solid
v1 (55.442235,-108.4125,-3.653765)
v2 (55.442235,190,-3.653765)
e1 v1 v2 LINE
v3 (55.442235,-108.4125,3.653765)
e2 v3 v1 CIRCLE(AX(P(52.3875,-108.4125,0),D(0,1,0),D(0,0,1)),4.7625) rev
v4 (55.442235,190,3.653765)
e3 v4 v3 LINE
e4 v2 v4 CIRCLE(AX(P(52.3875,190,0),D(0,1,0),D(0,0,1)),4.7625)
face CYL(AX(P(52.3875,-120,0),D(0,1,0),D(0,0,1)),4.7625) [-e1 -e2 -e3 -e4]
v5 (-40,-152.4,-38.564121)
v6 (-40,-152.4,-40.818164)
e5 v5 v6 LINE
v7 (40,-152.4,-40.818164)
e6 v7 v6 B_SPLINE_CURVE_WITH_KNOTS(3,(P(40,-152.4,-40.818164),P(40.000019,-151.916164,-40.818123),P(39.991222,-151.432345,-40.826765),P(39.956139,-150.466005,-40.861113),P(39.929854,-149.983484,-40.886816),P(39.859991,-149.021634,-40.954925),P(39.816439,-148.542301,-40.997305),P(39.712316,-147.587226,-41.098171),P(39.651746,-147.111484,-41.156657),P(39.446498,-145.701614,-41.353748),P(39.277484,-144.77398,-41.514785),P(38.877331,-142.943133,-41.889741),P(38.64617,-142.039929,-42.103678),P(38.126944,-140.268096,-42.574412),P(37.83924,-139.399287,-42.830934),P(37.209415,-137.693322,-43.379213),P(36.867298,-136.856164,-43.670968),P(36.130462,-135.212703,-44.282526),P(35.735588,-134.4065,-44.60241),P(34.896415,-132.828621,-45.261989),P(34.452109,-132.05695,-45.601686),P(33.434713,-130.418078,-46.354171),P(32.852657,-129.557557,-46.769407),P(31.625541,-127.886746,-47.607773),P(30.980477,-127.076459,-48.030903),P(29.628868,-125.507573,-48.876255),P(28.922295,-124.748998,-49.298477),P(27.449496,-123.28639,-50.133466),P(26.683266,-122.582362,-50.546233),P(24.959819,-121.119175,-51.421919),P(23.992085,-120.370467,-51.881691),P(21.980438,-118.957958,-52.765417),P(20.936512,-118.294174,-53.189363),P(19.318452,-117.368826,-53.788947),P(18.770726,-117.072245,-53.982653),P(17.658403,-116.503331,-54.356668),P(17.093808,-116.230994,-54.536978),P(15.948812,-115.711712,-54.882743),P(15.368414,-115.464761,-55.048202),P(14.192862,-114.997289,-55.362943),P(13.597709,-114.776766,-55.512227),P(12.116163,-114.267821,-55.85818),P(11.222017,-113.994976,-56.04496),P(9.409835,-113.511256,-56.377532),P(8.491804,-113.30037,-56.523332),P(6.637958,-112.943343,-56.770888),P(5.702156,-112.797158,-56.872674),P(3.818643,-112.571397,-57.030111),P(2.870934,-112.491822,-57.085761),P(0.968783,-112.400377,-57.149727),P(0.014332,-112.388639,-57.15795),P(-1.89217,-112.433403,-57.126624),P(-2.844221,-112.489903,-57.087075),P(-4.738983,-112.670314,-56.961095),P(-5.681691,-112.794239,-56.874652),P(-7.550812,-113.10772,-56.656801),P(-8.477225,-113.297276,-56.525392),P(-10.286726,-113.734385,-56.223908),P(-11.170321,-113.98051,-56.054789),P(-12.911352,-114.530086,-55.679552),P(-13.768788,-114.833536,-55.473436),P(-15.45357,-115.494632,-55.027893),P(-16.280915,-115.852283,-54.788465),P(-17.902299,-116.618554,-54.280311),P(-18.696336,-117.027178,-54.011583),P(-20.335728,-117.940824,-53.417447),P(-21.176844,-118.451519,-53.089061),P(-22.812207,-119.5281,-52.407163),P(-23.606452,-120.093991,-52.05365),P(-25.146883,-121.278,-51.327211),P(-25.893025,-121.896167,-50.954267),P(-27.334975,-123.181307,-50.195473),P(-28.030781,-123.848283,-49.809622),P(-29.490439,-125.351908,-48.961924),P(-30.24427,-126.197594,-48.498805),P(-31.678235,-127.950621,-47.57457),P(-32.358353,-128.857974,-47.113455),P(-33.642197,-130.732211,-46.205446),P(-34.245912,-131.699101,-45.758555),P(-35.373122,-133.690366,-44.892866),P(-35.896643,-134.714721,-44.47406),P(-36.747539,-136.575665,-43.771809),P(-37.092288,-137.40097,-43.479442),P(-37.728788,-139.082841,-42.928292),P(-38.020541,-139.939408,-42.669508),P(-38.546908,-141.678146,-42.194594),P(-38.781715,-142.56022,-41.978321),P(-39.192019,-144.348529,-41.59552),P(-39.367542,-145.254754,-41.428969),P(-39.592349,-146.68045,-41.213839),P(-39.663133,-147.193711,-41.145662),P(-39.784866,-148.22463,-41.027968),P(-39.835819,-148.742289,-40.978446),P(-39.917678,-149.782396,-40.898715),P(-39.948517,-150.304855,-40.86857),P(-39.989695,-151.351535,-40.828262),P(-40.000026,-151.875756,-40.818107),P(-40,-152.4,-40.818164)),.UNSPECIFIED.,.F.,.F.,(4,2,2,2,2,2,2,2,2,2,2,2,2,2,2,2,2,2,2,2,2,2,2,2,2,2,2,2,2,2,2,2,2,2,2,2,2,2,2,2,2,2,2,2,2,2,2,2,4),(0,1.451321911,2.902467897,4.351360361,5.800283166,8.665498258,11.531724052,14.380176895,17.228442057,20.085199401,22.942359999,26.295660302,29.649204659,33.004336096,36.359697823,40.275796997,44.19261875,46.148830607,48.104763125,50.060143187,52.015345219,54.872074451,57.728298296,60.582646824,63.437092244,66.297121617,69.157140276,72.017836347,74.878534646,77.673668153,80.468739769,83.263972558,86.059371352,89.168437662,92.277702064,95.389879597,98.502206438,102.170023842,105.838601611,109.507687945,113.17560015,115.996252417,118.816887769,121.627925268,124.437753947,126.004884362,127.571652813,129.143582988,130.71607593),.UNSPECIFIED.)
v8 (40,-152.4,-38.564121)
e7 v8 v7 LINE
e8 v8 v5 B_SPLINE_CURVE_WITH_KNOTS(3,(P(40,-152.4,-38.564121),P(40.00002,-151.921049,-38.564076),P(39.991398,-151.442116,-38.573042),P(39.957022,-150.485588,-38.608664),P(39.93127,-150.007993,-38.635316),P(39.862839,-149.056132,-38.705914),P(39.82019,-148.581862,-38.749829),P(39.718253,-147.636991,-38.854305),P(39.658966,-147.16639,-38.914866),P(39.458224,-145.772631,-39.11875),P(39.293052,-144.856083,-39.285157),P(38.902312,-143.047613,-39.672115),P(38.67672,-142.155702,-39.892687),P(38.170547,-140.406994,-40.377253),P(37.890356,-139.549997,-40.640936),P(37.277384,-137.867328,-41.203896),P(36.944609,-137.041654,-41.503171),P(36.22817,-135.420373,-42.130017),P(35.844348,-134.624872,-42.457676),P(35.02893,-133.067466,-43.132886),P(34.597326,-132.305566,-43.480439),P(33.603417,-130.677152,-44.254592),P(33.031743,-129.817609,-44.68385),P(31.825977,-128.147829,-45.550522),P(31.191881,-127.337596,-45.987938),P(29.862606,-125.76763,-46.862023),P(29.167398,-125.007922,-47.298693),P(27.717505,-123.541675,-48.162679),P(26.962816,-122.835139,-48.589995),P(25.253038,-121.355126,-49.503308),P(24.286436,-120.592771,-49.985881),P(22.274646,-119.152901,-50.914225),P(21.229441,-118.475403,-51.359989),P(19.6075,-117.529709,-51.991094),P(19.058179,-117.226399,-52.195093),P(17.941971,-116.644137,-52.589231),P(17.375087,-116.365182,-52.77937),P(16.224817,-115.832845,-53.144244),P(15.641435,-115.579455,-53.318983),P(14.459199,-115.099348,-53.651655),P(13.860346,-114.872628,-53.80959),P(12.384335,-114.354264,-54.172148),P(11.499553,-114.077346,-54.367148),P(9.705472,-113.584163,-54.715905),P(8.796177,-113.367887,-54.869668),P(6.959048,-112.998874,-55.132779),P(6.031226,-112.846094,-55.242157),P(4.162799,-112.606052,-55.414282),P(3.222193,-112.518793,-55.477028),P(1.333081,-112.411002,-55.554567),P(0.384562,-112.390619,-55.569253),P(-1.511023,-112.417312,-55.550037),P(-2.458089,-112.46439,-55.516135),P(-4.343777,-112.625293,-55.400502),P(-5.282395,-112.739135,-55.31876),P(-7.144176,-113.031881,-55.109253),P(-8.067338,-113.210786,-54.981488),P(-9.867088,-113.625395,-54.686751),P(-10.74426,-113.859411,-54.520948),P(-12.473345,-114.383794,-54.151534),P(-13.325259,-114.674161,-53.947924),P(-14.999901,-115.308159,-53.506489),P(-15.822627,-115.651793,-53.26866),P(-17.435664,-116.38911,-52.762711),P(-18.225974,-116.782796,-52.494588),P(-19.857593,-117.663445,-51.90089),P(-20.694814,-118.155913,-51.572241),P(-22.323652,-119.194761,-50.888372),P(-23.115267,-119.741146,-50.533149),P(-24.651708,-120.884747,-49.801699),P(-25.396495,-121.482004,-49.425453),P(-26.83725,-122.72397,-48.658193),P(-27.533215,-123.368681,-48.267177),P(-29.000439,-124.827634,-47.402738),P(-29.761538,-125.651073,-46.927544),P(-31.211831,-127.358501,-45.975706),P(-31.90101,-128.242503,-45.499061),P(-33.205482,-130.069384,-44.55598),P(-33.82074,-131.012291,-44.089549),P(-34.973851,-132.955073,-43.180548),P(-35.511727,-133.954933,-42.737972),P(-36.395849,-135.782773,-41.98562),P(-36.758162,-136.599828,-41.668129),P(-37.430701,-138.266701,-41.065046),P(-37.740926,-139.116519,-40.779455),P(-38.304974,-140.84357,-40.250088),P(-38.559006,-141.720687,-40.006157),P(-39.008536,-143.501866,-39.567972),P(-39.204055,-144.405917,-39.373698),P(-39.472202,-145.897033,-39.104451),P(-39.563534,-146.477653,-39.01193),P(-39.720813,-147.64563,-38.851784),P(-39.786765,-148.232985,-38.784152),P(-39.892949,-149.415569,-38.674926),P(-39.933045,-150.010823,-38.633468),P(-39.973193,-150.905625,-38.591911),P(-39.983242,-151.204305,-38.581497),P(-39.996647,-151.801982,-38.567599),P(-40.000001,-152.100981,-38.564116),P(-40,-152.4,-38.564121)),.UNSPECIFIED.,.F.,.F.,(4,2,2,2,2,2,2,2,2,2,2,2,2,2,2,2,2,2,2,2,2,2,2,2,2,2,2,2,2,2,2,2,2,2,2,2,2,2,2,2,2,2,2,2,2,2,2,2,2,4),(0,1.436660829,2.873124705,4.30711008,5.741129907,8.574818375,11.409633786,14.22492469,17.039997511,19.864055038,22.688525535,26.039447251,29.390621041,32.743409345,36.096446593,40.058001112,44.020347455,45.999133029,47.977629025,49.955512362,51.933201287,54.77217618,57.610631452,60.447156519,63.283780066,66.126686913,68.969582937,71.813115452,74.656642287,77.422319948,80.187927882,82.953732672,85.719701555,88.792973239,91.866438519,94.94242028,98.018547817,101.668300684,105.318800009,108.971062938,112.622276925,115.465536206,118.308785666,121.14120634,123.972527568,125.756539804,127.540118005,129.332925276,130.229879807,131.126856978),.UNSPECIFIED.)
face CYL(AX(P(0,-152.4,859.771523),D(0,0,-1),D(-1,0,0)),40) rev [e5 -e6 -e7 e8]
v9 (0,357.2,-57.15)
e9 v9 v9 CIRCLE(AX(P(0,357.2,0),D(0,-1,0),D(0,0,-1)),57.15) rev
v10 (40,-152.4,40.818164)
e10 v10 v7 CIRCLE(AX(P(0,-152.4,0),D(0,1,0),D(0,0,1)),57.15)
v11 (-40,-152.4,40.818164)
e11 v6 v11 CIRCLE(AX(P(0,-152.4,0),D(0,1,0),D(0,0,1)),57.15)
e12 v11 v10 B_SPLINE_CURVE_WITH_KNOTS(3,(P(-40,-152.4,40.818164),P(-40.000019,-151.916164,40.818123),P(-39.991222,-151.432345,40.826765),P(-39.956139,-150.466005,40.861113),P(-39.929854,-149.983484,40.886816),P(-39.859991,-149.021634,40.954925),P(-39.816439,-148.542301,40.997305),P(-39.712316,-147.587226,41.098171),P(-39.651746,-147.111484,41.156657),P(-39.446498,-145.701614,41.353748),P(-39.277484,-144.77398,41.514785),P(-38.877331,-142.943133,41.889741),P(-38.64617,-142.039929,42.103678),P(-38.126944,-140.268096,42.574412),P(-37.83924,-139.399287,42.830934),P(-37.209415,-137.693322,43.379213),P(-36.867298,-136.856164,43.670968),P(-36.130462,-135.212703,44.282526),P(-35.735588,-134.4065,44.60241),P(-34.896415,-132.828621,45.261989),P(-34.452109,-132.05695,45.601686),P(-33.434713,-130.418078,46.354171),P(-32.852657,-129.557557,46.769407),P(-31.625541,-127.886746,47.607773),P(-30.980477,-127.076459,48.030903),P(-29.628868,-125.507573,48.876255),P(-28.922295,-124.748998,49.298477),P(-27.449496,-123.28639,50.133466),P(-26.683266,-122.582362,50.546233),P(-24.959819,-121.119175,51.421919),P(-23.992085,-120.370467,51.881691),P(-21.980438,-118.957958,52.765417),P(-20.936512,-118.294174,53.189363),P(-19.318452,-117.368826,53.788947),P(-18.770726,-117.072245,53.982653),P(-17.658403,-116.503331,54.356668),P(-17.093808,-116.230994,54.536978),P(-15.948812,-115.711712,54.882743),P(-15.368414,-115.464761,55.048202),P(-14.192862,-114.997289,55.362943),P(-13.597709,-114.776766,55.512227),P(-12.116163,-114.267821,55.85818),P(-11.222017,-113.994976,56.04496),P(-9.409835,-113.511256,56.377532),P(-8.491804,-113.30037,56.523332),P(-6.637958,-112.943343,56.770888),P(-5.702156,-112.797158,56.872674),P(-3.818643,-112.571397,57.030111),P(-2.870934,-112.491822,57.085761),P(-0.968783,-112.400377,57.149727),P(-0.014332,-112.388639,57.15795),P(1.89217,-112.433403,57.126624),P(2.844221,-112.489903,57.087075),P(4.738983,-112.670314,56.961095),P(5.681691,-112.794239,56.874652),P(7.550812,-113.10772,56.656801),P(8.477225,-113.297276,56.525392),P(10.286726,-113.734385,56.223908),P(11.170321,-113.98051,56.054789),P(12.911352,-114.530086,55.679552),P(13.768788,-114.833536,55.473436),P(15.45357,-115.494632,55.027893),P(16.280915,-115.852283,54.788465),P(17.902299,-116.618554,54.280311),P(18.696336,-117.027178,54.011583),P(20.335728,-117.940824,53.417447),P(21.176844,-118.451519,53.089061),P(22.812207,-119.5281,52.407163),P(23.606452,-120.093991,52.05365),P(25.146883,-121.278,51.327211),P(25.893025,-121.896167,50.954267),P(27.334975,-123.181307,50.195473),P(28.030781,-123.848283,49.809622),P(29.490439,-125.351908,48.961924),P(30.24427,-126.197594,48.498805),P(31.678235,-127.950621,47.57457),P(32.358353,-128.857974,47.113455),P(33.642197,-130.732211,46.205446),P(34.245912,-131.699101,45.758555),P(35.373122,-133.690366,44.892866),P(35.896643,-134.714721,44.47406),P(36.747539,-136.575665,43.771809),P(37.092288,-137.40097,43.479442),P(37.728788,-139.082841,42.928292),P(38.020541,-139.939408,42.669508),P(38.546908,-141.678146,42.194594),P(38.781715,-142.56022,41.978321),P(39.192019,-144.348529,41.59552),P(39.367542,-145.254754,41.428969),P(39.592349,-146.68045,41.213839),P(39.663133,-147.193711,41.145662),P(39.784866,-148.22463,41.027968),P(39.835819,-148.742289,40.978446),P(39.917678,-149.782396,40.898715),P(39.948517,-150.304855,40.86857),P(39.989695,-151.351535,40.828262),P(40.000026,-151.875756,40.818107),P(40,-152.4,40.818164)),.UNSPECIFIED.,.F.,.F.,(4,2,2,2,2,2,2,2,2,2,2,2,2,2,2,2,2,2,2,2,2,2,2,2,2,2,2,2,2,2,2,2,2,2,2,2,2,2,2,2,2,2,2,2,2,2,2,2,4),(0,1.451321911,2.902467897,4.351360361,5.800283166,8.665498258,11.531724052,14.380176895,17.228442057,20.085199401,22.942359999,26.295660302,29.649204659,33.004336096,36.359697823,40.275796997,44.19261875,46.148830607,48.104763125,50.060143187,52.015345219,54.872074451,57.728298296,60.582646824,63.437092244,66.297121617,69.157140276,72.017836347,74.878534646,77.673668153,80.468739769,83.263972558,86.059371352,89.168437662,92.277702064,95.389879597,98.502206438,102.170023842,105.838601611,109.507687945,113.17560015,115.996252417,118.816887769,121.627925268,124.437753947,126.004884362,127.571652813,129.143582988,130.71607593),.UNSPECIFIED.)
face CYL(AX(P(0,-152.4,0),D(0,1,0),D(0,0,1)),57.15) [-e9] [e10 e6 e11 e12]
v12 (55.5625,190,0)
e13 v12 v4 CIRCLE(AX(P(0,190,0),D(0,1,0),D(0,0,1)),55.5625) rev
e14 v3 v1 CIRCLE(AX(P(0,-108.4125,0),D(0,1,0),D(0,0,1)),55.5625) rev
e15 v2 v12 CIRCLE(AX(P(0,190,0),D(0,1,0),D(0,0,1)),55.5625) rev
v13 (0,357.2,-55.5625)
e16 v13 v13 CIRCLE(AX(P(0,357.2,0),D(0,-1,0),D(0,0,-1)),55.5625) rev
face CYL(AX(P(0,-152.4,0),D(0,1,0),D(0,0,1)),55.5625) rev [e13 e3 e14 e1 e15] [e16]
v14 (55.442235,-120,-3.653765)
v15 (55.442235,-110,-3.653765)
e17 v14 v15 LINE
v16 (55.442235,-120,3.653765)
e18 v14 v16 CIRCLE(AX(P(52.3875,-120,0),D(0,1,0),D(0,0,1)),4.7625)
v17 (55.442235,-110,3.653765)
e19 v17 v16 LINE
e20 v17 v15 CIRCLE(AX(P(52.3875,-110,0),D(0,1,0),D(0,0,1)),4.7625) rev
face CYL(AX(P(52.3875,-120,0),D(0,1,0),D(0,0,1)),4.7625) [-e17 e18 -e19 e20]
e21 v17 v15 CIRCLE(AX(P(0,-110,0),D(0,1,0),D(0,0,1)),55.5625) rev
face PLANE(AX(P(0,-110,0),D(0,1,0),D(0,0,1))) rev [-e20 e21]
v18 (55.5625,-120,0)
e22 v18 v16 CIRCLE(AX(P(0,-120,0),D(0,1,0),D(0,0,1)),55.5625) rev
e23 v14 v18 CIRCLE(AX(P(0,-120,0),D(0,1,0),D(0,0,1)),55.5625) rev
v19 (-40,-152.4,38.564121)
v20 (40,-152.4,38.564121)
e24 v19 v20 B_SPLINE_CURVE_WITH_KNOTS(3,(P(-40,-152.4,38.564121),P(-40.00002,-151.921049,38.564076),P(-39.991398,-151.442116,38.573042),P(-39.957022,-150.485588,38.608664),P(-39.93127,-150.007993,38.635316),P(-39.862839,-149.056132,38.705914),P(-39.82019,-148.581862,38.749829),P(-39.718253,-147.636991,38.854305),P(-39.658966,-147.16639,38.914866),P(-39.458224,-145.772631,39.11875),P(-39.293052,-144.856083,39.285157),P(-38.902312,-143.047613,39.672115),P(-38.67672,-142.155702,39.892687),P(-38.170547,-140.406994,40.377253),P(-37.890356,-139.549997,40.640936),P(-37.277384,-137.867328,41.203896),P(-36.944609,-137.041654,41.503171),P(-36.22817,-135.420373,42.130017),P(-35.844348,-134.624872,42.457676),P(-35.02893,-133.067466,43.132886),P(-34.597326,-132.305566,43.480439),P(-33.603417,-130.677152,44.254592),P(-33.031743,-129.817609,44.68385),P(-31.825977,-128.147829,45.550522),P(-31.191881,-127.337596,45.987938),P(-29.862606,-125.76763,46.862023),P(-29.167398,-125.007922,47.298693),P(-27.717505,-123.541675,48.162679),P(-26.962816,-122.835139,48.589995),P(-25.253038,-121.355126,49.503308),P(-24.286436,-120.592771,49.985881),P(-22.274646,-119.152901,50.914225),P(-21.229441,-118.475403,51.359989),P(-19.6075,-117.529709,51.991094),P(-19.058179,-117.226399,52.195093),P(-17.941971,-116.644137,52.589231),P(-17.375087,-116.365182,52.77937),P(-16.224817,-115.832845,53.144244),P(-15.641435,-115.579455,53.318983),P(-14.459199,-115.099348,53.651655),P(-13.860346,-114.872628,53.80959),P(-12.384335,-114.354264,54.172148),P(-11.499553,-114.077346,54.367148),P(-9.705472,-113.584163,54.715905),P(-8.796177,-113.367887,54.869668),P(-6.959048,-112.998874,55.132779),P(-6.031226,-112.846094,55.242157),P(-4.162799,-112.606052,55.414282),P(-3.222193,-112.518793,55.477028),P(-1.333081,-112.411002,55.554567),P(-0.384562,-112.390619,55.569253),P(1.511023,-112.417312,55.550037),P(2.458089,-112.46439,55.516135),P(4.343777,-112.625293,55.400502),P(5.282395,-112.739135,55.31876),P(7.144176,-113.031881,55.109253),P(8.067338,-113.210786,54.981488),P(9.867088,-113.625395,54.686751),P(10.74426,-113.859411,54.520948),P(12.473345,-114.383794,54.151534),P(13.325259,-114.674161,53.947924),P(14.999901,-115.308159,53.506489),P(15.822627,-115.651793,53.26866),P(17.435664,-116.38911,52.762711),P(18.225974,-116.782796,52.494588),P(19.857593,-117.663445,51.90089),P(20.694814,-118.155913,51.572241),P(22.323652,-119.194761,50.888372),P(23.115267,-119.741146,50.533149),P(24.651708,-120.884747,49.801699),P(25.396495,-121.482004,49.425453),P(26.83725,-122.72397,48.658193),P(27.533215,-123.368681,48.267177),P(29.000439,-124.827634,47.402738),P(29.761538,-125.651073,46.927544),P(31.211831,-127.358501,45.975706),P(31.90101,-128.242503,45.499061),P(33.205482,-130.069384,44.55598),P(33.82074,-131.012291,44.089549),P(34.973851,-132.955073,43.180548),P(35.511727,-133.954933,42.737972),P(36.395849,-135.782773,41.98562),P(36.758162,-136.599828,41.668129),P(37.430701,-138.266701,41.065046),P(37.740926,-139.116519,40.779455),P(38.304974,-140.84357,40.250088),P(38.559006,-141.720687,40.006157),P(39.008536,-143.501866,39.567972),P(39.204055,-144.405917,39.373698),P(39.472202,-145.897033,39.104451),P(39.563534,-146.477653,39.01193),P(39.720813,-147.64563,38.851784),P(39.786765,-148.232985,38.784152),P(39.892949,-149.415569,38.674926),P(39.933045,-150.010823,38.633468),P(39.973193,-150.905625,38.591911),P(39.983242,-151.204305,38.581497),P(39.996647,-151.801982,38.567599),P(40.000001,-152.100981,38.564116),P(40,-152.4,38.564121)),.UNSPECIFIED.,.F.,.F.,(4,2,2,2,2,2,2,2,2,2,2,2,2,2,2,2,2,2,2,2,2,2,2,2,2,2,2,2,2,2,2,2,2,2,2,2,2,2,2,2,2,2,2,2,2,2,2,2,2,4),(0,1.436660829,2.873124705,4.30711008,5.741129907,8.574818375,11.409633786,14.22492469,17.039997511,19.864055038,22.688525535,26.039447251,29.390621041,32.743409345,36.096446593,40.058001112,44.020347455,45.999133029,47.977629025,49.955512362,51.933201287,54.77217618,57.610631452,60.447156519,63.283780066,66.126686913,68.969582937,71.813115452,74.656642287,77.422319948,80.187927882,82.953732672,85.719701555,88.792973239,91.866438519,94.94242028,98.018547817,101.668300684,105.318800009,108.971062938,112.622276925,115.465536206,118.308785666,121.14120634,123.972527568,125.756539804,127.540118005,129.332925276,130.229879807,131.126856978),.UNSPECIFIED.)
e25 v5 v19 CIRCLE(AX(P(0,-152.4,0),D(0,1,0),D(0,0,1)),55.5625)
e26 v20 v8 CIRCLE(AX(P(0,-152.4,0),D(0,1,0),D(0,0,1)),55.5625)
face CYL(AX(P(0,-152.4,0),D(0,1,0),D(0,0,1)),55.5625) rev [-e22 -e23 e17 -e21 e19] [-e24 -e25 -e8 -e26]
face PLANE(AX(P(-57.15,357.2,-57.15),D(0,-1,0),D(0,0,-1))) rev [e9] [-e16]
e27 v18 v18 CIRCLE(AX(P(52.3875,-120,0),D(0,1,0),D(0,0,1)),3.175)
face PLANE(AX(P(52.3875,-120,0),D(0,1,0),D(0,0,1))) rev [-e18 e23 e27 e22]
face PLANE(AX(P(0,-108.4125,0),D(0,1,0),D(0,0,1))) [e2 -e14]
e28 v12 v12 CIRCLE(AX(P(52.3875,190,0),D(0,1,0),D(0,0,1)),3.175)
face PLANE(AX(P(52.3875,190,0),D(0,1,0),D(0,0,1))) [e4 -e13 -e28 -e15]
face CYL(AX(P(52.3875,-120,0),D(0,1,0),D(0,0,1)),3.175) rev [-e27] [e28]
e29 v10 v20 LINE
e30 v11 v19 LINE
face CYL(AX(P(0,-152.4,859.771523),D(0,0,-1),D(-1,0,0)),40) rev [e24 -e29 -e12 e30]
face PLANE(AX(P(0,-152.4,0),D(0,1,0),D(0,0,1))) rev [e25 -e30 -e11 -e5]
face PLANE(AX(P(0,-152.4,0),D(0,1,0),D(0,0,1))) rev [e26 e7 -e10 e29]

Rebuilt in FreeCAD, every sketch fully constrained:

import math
import FreeCAD as App
import Part
import Sketcher

V = App.Vector
Q = App.Units.Quantity

doc = App.newDocument("Part")
body = doc.addObject("PartDesign::Body", "Body")

# Sketch on XZ plane
sketch1 = doc.addObject("Sketcher::SketchObject", "Sketch")
body.addObject(sketch1)
sketch1.AttachmentSupport = (doc.XZ_Plane, [""])
sketch1.MapMode = "FlatFace"
sketch1.addGeometry(Part.Circle(V(0, 0, 0), V(0, 0, 1), 57), False)
sketch1.addGeometry(Part.Circle(V(0, 0, 0), V(0, 0, 1), 56), False)
sketch1.addConstraint(Sketcher.Constraint("Coincident", 0, 3, -1, 1))
sketch1.addConstraint(Sketcher.Constraint("Coincident", 1, 3, -1, 1))
sketch1.addConstraint(Sketcher.Constraint("Diameter", 0, Q("4.5 in")))
sketch1.addConstraint(Sketcher.Constraint("Diameter", 1, Q("4.375 in")))
pad1 = doc.addObject("PartDesign::Pad", "Pad")
body.addObject(pad1)
pad1.Profile = sketch1
pad1.Type = "TwoLengths"
pad1.Length = Q("18 in")
pad1.Length2 = Q("6 in")
pad1.Reversed = True

# Sketch on XY plane
sketch2 = doc.addObject("Sketcher::SketchObject", "Sketch001")
body.addObject(sketch2)
sketch2.AttachmentSupport = (doc.XY_Plane, [""])
sketch2.MapMode = "FlatFace"
sketch2.addGeometry(Part.ArcOfCircle(Part.Circle(V(0, -152, 0), V(0, 0, 1), 40), math.radians(0), math.radians(180)), False)
sketch2.addGeometry(Part.LineSegment(V(-40, -152, 0), V(-40, -3886, 0)), False)
sketch2.addGeometry(Part.LineSegment(V(-40, -3886, 0), V(40, -3886, 0)), False)
sketch2.addGeometry(Part.LineSegment(V(40, -3886, 0), V(40, -152, 0)), False)
sketch2.addConstraint(Sketcher.Constraint("Tangent", 0, 2, 1, 1))
sketch2.addConstraint(Sketcher.Constraint("Coincident", 1, 2, 2, 1))
sketch2.addConstraint(Sketcher.Constraint("Coincident", 2, 2, 3, 1))
sketch2.addConstraint(Sketcher.Constraint("Tangent", 3, 2, 0, 1))
sketch2.addConstraint(Sketcher.Constraint("Vertical", 1))
sketch2.addConstraint(Sketcher.Constraint("Horizontal", 2))
sketch2.addConstraint(Sketcher.Constraint("Vertical", 3))
sketch2.addConstraint(Sketcher.Constraint("PointOnObject", 0, 3, -2))
sketch2.addConstraint(Sketcher.Constraint("DistanceY", 0, 3, -1, 1, Q("6 in")))
sketch2.addConstraint(Sketcher.Constraint("Radius", 0, 40.0))
sketch2.addConstraint(Sketcher.Constraint("DistanceY", 1, 2, 1, 1, 3733.756224))
pocket1 = doc.addObject("PartDesign::Pocket", "Pocket")
body.addObject(pocket1)
pocket1.Profile = sketch2
pocket1.Type = "ThroughAll"
pocket1.Midplane = True

# Sketch on XY plane
sketch3 = doc.addObject("Sketcher::SketchObject", "Sketch002")
body.addObject(sketch3)
sketch3.AttachmentSupport = (doc.XY_Plane, [""])
sketch3.MapMode = "FlatFace"
sketch3.addGeometry(Part.LineSegment(V(-57, 457, 0), V(-57, 357, 0)), False)
sketch3.addGeometry(Part.LineSegment(V(-57, 357, 0), V(57, 357, 0)), False)
sketch3.addGeometry(Part.LineSegment(V(57, 357, 0), V(57, 457, 0)), False)
sketch3.addGeometry(Part.LineSegment(V(57, 457, 0), V(-57, 457, 0)), False)
sketch3.addConstraint(Sketcher.Constraint("Coincident", 0, 2, 1, 1))
sketch3.addConstraint(Sketcher.Constraint("Coincident", 1, 2, 2, 1))
sketch3.addConstraint(Sketcher.Constraint("Coincident", 2, 2, 3, 1))
sketch3.addConstraint(Sketcher.Constraint("Coincident", 3, 2, 0, 1))
sketch3.addConstraint(Sketcher.Constraint("Vertical", 0))
sketch3.addConstraint(Sketcher.Constraint("Horizontal", 1))
sketch3.addConstraint(Sketcher.Constraint("Vertical", 2))
sketch3.addConstraint(Sketcher.Constraint("Horizontal", 3))
sketch3.addConstraint(Sketcher.Constraint("DistanceX", 1, 1, 1, 2, Q("4.5 in")))
sketch3.addConstraint(Sketcher.Constraint("DistanceY", -1, 1, 2, 2, Q("18 in")))
sketch3.addConstraint(Sketcher.Constraint("DistanceX", 0, 2, -1, 1, Q("2.25 in")))
sketch3.addConstraint(Sketcher.Constraint("DistanceY", 0, 2, 0, 1, 100.0))
pocket2 = doc.addObject("PartDesign::Pocket", "Pocket001")
body.addObject(pocket2)
pocket2.Profile = sketch3
pocket2.Type = "ThroughAll"
pocket2.Midplane = True

# Sketch on XZ plane
sketch4 = doc.addObject("Sketcher::SketchObject", "Sketch003")
body.addObject(sketch4)
sketch4.AttachmentSupport = (doc.XZ_Plane, [""])
sketch4.MapMode = "FlatFace"
sketch4.AttachmentOffset = App.Placement(V(0, 0, 110), App.Rotation())
sketch4.addGeometry(Part.Circle(V(52.4, 0, 0), V(0, 0, 1), 4.8), False)
sketch4.addGeometry(Part.Circle(V(52.4, 0, 0), V(0, 0, 1), 3.2), False)
sketch4.addConstraint(Sketcher.Constraint("Coincident", 1, 3, 0, 3))
sketch4.addConstraint(Sketcher.Constraint("PointOnObject", 0, 3, -1))
sketch4.addConstraint(Sketcher.Constraint("Diameter", 1, Q("0.25 in")))
sketch4.addConstraint(Sketcher.Constraint("Diameter", 0, Q("0.375 in")))
sketch4.addConstraint(Sketcher.Constraint("DistanceX", -1, 1, 0, 3, Q("2.0625 in")))
pad2 = doc.addObject("PartDesign::Pad", "Pad001")
body.addObject(pad2)
pad2.Profile = sketch4
pad2.Type = "TwoLengths"
pad2.Length = 300
pad2.Length2 = 10
pad2.Reversed = True

# Sketch on XZ plane
sketch5 = doc.addObject("Sketcher::SketchObject", "Sketch004")
body.addObject(sketch5)
sketch5.AttachmentSupport = (doc.XZ_Plane, [""])
sketch5.MapMode = "FlatFace"
sketch5.AttachmentOffset = App.Placement(V(0, 0, 110), App.Rotation())
sketch5.addGeometry(Part.Circle(V(0, 0, 0), V(0, 0, 1), 57.1), False)
sketch5.addGeometry(Part.Circle(V(52.4, 0, 0), V(0, 0, 1), 3.2), False)
sketch5.addConstraint(Sketcher.Constraint("Coincident", 0, 3, -1, 1))
sketch5.addConstraint(Sketcher.Constraint("PointOnObject", 1, 3, -1))
sketch5.addConstraint(Sketcher.Constraint("Diameter", 0, Q("4.5 in")))
sketch5.addConstraint(Sketcher.Constraint("Diameter", 1, Q("0.25 in")))
sketch5.addConstraint(Sketcher.Constraint("DistanceX", -1, 1, 1, 3, Q("2.0625 in")))
pad3 = doc.addObject("PartDesign::Pad", "Pad002")
body.addObject(pad3)
pad3.Profile = sketch5
pad3.Length = Q("0.0625 in")
pad3.Reversed = True

doc.recompute()
